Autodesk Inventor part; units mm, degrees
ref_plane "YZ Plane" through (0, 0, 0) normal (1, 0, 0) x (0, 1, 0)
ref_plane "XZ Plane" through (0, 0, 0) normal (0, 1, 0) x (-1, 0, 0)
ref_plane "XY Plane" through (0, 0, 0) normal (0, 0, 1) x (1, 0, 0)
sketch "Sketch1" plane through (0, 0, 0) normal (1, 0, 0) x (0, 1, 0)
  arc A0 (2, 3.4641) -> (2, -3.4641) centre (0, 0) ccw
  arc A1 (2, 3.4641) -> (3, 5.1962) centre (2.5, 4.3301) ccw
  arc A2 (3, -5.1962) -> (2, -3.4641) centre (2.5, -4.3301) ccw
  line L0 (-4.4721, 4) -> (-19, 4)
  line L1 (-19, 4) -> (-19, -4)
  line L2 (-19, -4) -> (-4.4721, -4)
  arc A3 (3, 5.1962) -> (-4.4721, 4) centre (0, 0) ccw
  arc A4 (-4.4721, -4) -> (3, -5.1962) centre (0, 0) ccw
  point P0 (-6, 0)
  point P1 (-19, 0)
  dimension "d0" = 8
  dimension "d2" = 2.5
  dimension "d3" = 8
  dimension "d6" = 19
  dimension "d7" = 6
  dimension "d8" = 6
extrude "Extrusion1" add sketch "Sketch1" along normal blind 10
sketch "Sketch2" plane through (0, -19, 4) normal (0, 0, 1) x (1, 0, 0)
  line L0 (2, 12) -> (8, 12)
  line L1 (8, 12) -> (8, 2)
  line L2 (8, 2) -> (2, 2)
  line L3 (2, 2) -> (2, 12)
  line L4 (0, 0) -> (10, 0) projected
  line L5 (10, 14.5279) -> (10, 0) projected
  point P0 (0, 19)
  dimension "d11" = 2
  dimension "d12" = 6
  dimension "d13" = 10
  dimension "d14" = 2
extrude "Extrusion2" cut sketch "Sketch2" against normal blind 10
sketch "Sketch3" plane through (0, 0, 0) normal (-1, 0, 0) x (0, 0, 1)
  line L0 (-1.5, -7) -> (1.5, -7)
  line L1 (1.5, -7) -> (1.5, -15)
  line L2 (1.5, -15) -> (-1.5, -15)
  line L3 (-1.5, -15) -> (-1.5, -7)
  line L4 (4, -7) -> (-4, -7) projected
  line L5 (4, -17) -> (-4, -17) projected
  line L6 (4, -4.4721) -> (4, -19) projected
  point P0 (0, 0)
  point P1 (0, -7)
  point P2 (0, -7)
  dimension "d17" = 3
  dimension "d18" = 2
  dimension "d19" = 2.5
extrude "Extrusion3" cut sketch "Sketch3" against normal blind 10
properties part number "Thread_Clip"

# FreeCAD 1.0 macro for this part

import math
import FreeCAD as App
import Part
import Sketcher

doc = App.newDocument("Part")
body = doc.addObject("PartDesign::Body", "Body")

# Sketch on YZ plane
sketch1 = doc.addObject("Sketcher::SketchObject", "Sketch")
body.addObject(sketch1)
sketch1.AttachmentSupport = (doc.YZ_Plane, [""])
sketch1.MapMode = "FlatFace"
sketch1.addGeometry(Part.ArcOfCircle(Part.Circle(App.Vector(0, 0, 0), App.Vector(0, 0, 1), 4), math.radians(60), math.radians(300)), False)
sketch1.addGeometry(Part.ArcOfCircle(Part.Circle(App.Vector(2.5, 4.3, 0), App.Vector(0, 0, 1), 1), math.radians(-120), math.radians(60)), False)
sketch1.addGeometry(Part.ArcOfCircle(Part.Circle(App.Vector(0, 0, 0), App.Vector(0, 0, 1), 6), math.radians(60), math.radians(138)), False)
sketch1.addGeometry(Part.LineSegment(App.Vector(-4.5, 4, 0), App.Vector(-19, 4, 0)), False)
sketch1.addGeometry(Part.LineSegment(App.Vector(-19, 4, 0), App.Vector(-19, -4, 0)), False)
sketch1.addGeometry(Part.LineSegment(App.Vector(-19, -4, 0), App.Vector(-4.5, -4, 0)), False)
sketch1.addGeometry(Part.ArcOfCircle(Part.Circle(App.Vector(0, 0, 0), App.Vector(0, 0, 1), 6), math.radians(-138), math.radians(-60)), False)
sketch1.addGeometry(Part.ArcOfCircle(Part.Circle(App.Vector(2.5, -4.3, 0), App.Vector(0, 0, 1), 1), math.radians(-60), math.radians(120)), False)
sketch1.addConstraint(Sketcher.Constraint("Tangent", 0, 1, 1, 1))
sketch1.addConstraint(Sketcher.Constraint("Tangent", 1, 2, 2, 1))
sketch1.addConstraint(Sketcher.Constraint("Coincident", 2, 2, 3, 1))
sketch1.addConstraint(Sketcher.Constraint("Coincident", 3, 2, 4, 1))
sketch1.addConstraint(Sketcher.Constraint("Coincident", 4, 2, 5, 1))
sketch1.addConstraint(Sketcher.Constraint("Coincident", 5, 2, 6, 1))
sketch1.addConstraint(Sketcher.Constraint("Tangent", 6, 2, 7, 1))
sketch1.addConstraint(Sketcher.Constraint("Tangent", 7, 2, 0, 2))
sketch1.addConstraint(Sketcher.Constraint("Horizontal", 3))
sketch1.addConstraint(Sketcher.Constraint("Vertical", 4))
sketch1.addConstraint(Sketcher.Constraint("Horizontal", 5))
sketch1.addConstraint(Sketcher.Constraint("Coincident", 0, 3, -1, 1))
sketch1.addConstraint(Sketcher.Constraint("Coincident", 2, 3, -1, 1))
sketch1.addConstraint(Sketcher.Constraint("Coincident", 6, 3, -1, 1))
sketch1.addConstraint(Sketcher.Constraint("Equal", 2, 6))
sketch1.addConstraint(Sketcher.Constraint("Vertical", 1, 3, 7, 3))
sketch1.addConstraint(Sketcher.Constraint("Vertical", 2, 2, 5, 2))
sketch1.addConstraint(Sketcher.Constraint("Radius", 0, 4.0))
sketch1.addConstraint(Sketcher.Constraint("Radius", 2, 6.0))
sketch1.addConstraint(Sketcher.Constraint("DistanceY", 4, 2, 4, 1, 8.0))
sketch1.addConstraint(Sketcher.Constraint("DistanceX", 3, 2, -1, 1, 19.0))
sketch1.addConstraint(Sketcher.Constraint("DistanceX", -1, 1, 1, 3, 2.5))
pad1 = doc.addObject("PartDesign::Pad", "Pad")
body.addObject(pad1)
pad1.Profile = sketch1
pad1.Length = 10

# Sketch on XY plane
sketch2 = doc.addObject("Sketcher::SketchObject", "Sketch001")
body.addObject(sketch2)
sketch2.AttachmentSupport = (doc.XY_Plane, [""])
sketch2.MapMode = "FlatFace"
sketch2.AttachmentOffset = App.Placement(App.Vector(0, 0, 4), App.Rotation())
sketch2.addGeometry(Part.LineSegment(App.Vector(8, -7, 0), App.Vector(2, -7, 0)), False)
sketch2.addGeometry(Part.LineSegment(App.Vector(2, -7, 0), App.Vector(2, -17, 0)), False)
sketch2.addGeometry(Part.LineSegment(App.Vector(2, -17, 0), App.Vector(8, -17, 0)), False)
sketch2.addGeometry(Part.LineSegment(App.Vector(8, -17, 0), App.Vector(8, -7, 0)), False)
sketch2.addConstraint(Sketcher.Constraint("Coincident", 0, 2, 1, 1))
sketch2.addConstraint(Sketcher.Constraint("Coincident", 1, 2, 2, 1))
sketch2.addConstraint(Sketcher.Constraint("Coincident", 2, 2, 3, 1))
sketch2.addConstraint(Sketcher.Constraint("Coincident", 3, 2, 0, 1))
sketch2.addConstraint(Sketcher.Constraint("Horizontal", 0))
sketch2.addConstraint(Sketcher.Constraint("Vertical", 1))
sketch2.addConstraint(Sketcher.Constraint("Horizontal", 2))
sketch2.addConstraint(Sketcher.Constraint("Vertical", 3))
sketch2.addConstraint(Sketcher.Constraint("DistanceX", 0, 2, 0, 1, 6.0))
sketch2.addConstraint(Sketcher.Constraint("DistanceY", 1, 2, 1, 1, 10.0))
sketch2.addConstraint(Sketcher.Constraint("DistanceX", -1, 1, 0, 2, 2.0))
sketch2.addConstraint(Sketcher.Constraint("DistanceY", 0, 2, -1, 1, 7.0))
pocket1 = doc.addObject("PartDesign::Pocket", "Pocket")
body.addObject(pocket1)
pocket1.Profile = sketch2
pocket1.Length = 10

# Sketch on YZ plane
sketch3 = doc.addObject("Sketcher::SketchObject", "Sketch002")
body.addObject(sketch3)
sketch3.AttachmentSupport = (doc.YZ_Plane, [""])
sketch3.MapMode = "FlatFace"
sketch3.addGeometry(Part.LineSegment(App.Vector(-7, 1.5, 0), App.Vector(-7, -1.5, 0)), False)
sketch3.addGeometry(Part.LineSegment(App.Vector(-7, -1.5, 0), App.Vector(-15, -1.5, 0)), False)
sketch3.addGeometry(Part.LineSegment(App.Vector(-15, -1.5, 0), App.Vector(-15, 1.5, 0)), False)
sketch3.addGeometry(Part.LineSegment(App.Vector(-15, 1.5, 0), App.Vector(-7, 1.5, 0)), False)
sketch3.addConstraint(Sketcher.Constraint("Coincident", 0, 2, 1, 1))
sketch3.addConstraint(Sketcher.Constraint("Coincident", 1, 2, 2, 1))
sketch3.addConstraint(Sketcher.Constraint("Coincident", 2, 2, 3, 1))
sketch3.addConstraint(Sketcher.Constraint("Coincident", 3, 2, 0, 1))
sketch3.addConstraint(Sketcher.Constraint("Vertical", 0))
sketch3.addConstraint(Sketcher.Constraint("Horizontal", 1))
sketch3.addConstraint(Sketcher.Constraint("Vertical", 2))
sketch3.addConstraint(Sketcher.Constraint("Horizontal", 3))
sketch3.addConstraint(Sketcher.Constraint("DistanceY", 0, 2, 0, 1, 3.0))
sketch3.addConstraint(Sketcher.Constraint("DistanceX", 1, 2, 1, 1, 8.0))
sketch3.addConstraint(Sketcher.Constraint("DistanceX", 0, 2, -1, 1, 7.0))
sketch3.addConstraint(Sketcher.Constraint("DistanceY", 0, 2, -1, 1, 1.5))
pocket2 = doc.addObject("PartDesign::Pocket", "Pocket001")
body.addObject(pocket2)
pocket2.Profile = sketch3
pocket2.Length = 10
pocket2.Reversed = True

doc.recompute()
